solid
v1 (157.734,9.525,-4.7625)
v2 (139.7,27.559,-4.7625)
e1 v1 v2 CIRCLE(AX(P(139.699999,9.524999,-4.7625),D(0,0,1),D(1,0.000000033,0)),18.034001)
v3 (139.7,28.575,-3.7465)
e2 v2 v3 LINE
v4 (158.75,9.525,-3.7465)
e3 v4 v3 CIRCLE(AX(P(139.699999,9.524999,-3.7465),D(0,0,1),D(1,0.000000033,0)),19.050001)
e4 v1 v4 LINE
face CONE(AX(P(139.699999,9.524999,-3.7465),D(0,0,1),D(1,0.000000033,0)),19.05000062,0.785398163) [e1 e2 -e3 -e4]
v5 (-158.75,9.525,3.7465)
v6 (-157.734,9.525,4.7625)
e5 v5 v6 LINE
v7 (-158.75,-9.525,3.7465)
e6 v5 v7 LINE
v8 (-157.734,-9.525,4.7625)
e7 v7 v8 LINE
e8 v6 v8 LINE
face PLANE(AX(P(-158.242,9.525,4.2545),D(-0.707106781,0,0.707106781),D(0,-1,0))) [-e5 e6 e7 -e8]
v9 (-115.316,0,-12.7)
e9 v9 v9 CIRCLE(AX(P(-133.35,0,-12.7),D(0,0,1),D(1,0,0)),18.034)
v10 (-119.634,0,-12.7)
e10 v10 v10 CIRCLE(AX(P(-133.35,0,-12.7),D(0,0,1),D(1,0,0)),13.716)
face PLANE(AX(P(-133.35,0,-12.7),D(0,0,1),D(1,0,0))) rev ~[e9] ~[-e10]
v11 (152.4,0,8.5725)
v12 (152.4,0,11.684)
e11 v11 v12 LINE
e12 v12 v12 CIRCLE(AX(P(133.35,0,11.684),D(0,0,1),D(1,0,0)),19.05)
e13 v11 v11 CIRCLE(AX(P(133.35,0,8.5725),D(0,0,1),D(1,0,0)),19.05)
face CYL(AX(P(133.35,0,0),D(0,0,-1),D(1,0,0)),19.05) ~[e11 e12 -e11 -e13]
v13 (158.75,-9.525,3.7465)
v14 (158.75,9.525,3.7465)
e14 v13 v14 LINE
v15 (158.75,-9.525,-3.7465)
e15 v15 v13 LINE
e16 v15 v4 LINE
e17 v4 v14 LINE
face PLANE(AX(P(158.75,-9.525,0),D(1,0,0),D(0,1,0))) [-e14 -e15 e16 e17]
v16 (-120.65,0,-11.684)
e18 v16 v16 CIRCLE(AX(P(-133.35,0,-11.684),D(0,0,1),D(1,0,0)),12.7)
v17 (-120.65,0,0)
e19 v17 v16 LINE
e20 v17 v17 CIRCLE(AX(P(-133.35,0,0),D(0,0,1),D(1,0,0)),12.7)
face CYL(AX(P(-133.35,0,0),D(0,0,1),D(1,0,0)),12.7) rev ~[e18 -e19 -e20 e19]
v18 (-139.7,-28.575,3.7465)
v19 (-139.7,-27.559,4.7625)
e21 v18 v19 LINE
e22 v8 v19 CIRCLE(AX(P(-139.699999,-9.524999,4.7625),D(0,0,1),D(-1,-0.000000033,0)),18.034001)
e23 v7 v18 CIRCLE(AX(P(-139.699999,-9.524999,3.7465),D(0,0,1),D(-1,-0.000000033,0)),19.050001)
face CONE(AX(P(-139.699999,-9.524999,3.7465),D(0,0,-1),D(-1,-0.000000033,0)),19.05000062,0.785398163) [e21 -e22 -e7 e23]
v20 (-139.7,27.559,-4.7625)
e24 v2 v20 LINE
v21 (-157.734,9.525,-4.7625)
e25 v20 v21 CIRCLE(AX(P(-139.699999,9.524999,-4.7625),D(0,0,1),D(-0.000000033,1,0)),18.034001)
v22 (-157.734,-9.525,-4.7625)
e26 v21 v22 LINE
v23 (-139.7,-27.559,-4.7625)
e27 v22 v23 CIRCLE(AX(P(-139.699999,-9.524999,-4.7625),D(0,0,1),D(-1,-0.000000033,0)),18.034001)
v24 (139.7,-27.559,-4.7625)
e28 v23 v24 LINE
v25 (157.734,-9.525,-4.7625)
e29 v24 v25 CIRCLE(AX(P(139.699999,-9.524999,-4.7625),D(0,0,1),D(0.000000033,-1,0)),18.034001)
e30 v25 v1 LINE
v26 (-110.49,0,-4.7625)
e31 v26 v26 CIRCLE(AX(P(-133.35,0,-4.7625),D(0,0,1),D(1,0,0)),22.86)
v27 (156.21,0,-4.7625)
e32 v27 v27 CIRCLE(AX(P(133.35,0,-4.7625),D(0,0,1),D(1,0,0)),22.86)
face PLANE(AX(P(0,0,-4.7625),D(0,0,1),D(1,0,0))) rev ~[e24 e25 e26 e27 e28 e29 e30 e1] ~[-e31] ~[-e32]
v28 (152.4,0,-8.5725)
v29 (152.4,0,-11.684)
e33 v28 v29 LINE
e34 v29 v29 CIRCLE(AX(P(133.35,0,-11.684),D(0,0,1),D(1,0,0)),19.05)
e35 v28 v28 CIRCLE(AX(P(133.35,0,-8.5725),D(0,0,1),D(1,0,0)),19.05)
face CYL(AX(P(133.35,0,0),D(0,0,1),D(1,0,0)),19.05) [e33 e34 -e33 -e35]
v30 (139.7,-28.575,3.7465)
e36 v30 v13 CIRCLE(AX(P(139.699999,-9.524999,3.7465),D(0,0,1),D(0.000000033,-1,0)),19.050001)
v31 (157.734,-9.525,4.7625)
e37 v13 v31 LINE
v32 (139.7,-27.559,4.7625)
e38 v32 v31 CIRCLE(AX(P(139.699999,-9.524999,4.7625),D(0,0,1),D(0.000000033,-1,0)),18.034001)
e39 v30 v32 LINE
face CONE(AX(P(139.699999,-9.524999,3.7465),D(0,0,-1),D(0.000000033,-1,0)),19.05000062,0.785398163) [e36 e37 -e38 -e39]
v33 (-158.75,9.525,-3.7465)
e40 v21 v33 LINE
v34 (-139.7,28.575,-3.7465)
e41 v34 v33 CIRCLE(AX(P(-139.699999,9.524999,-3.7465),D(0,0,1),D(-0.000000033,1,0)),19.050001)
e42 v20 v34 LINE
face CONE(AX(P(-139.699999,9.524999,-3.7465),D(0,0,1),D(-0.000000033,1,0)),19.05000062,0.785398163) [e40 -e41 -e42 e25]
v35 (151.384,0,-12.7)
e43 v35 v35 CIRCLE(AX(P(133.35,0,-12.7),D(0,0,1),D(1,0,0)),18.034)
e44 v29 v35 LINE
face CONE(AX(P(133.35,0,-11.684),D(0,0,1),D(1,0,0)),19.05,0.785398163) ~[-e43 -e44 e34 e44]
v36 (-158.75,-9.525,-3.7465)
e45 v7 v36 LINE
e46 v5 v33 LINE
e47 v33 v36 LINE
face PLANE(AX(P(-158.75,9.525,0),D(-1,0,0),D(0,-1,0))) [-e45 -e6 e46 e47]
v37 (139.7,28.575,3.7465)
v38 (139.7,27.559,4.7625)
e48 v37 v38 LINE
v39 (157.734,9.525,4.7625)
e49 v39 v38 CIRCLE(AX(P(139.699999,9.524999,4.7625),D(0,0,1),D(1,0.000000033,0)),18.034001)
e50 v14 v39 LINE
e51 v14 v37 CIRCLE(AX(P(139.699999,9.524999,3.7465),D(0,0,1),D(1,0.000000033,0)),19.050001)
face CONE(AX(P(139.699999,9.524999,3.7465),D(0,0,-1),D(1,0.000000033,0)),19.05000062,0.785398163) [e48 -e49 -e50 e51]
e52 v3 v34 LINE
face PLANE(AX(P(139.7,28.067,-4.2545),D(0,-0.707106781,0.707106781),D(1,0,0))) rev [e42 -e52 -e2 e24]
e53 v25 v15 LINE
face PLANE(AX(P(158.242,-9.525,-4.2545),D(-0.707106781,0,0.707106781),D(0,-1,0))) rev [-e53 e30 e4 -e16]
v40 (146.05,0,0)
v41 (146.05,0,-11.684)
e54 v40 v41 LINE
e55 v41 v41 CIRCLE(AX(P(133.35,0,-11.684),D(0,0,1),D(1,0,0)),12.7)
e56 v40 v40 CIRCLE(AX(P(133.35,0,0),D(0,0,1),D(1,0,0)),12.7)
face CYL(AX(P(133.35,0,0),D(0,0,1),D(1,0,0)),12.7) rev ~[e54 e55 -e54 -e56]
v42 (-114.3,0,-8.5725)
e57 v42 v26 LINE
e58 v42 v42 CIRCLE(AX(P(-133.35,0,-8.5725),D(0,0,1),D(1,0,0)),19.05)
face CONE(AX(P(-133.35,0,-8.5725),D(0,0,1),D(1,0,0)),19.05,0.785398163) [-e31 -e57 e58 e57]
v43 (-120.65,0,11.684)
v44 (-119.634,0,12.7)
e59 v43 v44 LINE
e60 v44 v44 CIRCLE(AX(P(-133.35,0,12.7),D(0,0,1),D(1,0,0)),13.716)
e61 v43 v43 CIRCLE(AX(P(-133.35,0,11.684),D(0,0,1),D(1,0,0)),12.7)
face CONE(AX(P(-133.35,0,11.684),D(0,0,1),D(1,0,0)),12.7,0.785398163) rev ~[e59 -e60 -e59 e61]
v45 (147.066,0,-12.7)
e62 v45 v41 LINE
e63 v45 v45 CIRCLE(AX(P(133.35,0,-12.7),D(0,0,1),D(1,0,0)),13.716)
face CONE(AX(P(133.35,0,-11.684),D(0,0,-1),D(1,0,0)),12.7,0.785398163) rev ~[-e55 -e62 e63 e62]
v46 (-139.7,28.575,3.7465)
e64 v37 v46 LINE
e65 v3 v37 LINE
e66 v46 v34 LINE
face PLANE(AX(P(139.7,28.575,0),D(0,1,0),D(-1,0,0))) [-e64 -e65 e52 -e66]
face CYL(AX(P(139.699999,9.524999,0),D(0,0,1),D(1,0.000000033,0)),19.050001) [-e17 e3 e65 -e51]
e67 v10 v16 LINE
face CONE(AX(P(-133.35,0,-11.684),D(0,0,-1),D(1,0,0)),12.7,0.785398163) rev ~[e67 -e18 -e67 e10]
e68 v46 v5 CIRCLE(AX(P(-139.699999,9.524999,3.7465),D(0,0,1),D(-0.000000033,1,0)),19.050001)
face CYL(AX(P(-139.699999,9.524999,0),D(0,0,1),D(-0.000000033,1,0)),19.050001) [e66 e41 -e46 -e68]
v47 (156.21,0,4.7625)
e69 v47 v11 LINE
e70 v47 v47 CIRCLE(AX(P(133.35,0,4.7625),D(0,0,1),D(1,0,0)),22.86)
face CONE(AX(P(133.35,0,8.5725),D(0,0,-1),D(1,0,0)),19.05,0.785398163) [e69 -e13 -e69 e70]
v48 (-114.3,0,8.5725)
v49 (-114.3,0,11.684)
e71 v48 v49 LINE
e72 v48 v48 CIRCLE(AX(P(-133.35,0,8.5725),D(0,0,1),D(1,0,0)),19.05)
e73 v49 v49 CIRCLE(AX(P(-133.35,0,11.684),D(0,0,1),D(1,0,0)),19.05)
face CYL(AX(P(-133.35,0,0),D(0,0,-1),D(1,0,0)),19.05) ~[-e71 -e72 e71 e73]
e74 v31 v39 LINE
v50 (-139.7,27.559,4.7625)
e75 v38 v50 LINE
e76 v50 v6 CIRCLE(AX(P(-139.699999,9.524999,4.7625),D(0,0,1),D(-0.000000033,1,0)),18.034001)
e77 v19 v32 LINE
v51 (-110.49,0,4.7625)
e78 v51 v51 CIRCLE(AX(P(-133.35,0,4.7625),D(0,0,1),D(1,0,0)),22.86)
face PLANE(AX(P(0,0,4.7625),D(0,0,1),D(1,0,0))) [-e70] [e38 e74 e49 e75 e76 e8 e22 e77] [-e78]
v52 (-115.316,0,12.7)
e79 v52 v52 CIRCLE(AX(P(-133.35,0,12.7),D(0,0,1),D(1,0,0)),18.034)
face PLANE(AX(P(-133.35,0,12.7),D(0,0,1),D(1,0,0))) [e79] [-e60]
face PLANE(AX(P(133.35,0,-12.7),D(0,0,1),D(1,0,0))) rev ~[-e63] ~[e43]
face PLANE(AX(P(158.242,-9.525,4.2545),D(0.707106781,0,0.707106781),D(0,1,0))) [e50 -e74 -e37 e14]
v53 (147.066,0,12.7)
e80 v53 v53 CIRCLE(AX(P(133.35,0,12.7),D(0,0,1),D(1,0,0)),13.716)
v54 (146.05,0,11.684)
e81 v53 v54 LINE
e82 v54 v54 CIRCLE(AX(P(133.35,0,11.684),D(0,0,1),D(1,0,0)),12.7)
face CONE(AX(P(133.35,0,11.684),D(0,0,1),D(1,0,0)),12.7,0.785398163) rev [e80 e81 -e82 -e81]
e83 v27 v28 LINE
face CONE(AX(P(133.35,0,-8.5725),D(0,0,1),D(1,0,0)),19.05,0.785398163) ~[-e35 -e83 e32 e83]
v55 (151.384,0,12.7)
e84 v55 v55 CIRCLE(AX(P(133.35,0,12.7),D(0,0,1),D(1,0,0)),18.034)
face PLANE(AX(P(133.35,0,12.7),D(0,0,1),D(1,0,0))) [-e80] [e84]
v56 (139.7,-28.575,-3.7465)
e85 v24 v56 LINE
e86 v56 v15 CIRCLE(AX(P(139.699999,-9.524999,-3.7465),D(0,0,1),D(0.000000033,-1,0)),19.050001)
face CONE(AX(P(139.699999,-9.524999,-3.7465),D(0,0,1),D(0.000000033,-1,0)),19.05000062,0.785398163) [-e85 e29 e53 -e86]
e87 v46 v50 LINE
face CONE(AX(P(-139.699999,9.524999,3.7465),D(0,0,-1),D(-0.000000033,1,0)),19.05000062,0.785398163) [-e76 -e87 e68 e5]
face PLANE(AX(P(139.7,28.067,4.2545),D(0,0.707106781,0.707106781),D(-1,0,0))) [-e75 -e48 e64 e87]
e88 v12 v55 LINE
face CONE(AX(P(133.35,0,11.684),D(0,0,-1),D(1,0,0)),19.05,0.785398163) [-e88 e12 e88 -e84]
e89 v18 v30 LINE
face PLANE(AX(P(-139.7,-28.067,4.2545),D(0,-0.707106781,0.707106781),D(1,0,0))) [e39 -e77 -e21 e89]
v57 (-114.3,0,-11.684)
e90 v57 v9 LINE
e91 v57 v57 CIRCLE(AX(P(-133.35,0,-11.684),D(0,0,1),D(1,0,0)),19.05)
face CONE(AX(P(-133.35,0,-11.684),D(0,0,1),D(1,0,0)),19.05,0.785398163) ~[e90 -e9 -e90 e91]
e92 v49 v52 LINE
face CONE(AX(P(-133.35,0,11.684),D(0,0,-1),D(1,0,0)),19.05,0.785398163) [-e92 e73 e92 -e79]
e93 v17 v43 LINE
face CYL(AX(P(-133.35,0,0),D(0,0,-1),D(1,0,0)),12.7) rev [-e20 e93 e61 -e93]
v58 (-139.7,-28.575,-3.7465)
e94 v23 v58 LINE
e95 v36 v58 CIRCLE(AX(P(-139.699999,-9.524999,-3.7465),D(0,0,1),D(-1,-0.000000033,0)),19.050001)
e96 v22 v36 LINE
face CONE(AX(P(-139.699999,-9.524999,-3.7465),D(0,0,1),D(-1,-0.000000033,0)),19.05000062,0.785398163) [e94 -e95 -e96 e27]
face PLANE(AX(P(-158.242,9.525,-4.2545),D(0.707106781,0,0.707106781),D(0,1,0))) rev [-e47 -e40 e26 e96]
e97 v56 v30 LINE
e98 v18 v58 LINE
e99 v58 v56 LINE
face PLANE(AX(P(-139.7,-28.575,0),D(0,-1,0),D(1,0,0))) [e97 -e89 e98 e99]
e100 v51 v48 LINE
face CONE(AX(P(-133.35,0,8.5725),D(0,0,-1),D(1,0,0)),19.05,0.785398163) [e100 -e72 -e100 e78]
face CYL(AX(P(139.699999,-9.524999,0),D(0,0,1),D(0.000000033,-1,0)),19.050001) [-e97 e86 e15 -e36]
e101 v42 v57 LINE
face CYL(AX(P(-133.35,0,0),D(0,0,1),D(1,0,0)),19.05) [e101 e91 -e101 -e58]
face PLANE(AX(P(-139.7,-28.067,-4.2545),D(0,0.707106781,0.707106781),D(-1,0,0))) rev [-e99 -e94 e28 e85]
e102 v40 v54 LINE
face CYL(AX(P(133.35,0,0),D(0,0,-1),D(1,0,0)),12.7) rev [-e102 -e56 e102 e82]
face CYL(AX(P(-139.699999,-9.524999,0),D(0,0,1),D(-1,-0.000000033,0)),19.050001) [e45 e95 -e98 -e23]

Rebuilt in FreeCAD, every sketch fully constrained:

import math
import FreeCAD as App
import Part
import Sketcher
from FreeCAD import Vector
Q = App.Units.Quantity


def edges_at(feature, points):
    """Names of the edges that pass closest to the given points."""
    edges = feature.Shape.Edges
    near = lambda p: min(range(len(edges)), key=lambda i: edges[i].distToShape(Part.Vertex(*p))[0])
    return sorted({f"Edge{near(p) + 1}" for p in points})

doc = App.newDocument("Part")
body = doc.addObject("PartDesign::Body", "Body")

sketch1 = body.newObject("Sketcher::SketchObject", "Sketch")
sketch1.AttachmentSupport = (doc.getObject("XY_Plane"), [""])
sketch1.MapMode = "FlatFace"
sketch1.addGeometry([
    Part.LineSegment(Vector(-140, -29, 0), Vector(140, -29, 0)),
    Part.ArcOfCircle(Part.Circle(Vector(140, -10, 0), Vector(0, 0, 1), 19), math.radians(-90), math.radians(0)),
    Part.LineSegment(Vector(159, -10, 0), Vector(159, 10, 0)),
    Part.ArcOfCircle(Part.Circle(Vector(140, 10, 0), Vector(0, 0, 1), 19), math.radians(0), math.radians(90)),
    Part.LineSegment(Vector(140, 29, 0), Vector(-140, 29, 0)),
    Part.ArcOfCircle(Part.Circle(Vector(-140, 10, 0), Vector(0, 0, 1), 19), math.radians(90), math.radians(180)),
    Part.LineSegment(Vector(-159, 10, 0), Vector(-159, -10, 0)),
    Part.ArcOfCircle(Part.Circle(Vector(-140, -10, 0), Vector(0, 0, 1), 19), math.radians(-180), math.radians(-90)),
    Part.Circle(Vector(-133, 0, 0), Vector(0, 0, 1), 19),
    Part.Circle(Vector(133, 0, 0), Vector(0, 0, 1), 19),
], False)
sketch1.addConstraint([
    Sketcher.Constraint("Tangent", 0, 2, 1, 1),
    Sketcher.Constraint("Tangent", 1, 2, 2, 1),
    Sketcher.Constraint("Tangent", 2, 2, 3, 1),
    Sketcher.Constraint("Tangent", 3, 2, 4, 1),
    Sketcher.Constraint("Tangent", 4, 2, 5, 1),
    Sketcher.Constraint("Tangent", 5, 2, 6, 1),
    Sketcher.Constraint("Tangent", 6, 2, 7, 1),
    Sketcher.Constraint("Tangent", 7, 2, 0, 1),
    Sketcher.Constraint("Horizontal", 0),
    Sketcher.Constraint("Vertical", 2),
    Sketcher.Constraint("Horizontal", 4),
    Sketcher.Constraint("Vertical", 6),
    Sketcher.Constraint("Equal", 1, 3),
    Sketcher.Constraint("Equal", 3, 5),
    Sketcher.Constraint("Equal", 5, 7),
    Sketcher.Constraint("Equal", 7, 8),
    Sketcher.Constraint("Equal", 8, 9),
    Sketcher.Constraint("Symmetric", 1, 3, 5, 3, -1, 1),
    Sketcher.Constraint("Symmetric", 8, 3, 9, 3, -1, 1),
    Sketcher.Constraint("PointOnObject", 8, 3, -1),
    Sketcher.Constraint("Diameter", 8, Q("1.5 in")),
    Sketcher.Constraint("DistanceX", 0, 1, 0, 2, Q("11 in")),
    Sketcher.Constraint("DistanceX", 9, 3, 1, 2, Q("1 in")),
    Sketcher.Constraint("DistanceY", 2, 1, 2, 2, Q("0.75 in")),
])
pad1 = body.newObject("PartDesign::Pad", "Pad")
pad1.Profile = sketch1
pad1.Type = "TwoLengths"
pad1.Length = Q("0.1875 in")
pad1.Length2 = Q("0.1875 in")

sketch2 = body.newObject("Sketcher::SketchObject", "Sketch001")
sketch2.AttachmentSupport = (doc.getObject("XY_Plane"), [""])
sketch2.MapMode = "FlatFace"
sketch2.addGeometry([
    Part.Circle(Vector(-133, 0, 0), Vector(0, 0, 1), 19),
    Part.Circle(Vector(-133, 0, 0), Vector(0, 0, 1), 13),
    Part.Circle(Vector(133, 0, 0), Vector(0, 0, 1), 19),
    Part.Circle(Vector(133, 0, 0), Vector(0, 0, 1), 13),
], False)
sketch2.addConstraint([
    Sketcher.Constraint("Coincident", 1, 3, 0, 3),
    Sketcher.Constraint("Coincident", 3, 3, 2, 3),
    Sketcher.Constraint("Equal", 0, 2),
    Sketcher.Constraint("Equal", 1, 3),
    Sketcher.Constraint("Symmetric", 0, 3, 2, 3, -1, 1),
    Sketcher.Constraint("PointOnObject", 0, 3, -1),
    Sketcher.Constraint("Diameter", 1, Q("1 in")),
    Sketcher.Constraint("Diameter", 0, Q("1.5 in")),
    Sketcher.Constraint("DistanceX", 0, 3, 2, 3, Q("10.5 in")),
])
pad2 = body.newObject("PartDesign::Pad", "Pad001")
pad2.Profile = sketch2
pad2.Type = "TwoLengths"
pad2.Length = Q("0.5 in")
pad2.Length2 = Q("0.5 in")
doc.recompute()

chamfer = body.newObject("PartDesign::Chamfer", "Chamfer")
chamfer.Base = (pad2, edges_at(pad2, [
    (-139.7, -28.575, 0),
    (0, -28.575, 4.763),
    (139.7, -28.575, 0),
    (0, -28.575, -4.763),
    (158.75, 0, 4.763),
    (158.75, 9.525, 0),
    (158.75, 0, -4.763),
    (158.75, -9.525, 0),
    (0, 28.575, 4.763),
    (-139.7, 28.575, 0),
    (0, 28.575, -4.763),
    (139.7, 28.575, 0),
    (-158.75, 9.525, 0),
    (-158.75, 0, 4.763),
    (-158.75, -9.525, 0),
    (-158.75, 0, -4.763),
    (120.65, 0, 12.7),
    (146.05, 0, -6.35),
    (120.65, 0, -12.7),
    (-146.05, 0, 12.7),
    (-120.65, 0, -6.35),
    (-146.05, 0, -12.7),
    (-152.4, 0, -12.7),
    (114.3, 0, -12.7),
    (114.3, 0, 12.7),
    (-152.4, 0, 12.7),
]))
chamfer.Size = Q("0.04 in")
doc.recompute()

chamfer2 = body.newObject("PartDesign::Chamfer", "Chamfer001")
chamfer2.Base = (chamfer, edges_at(chamfer, [
    (-152.4, 0, 4.763),
    (-152.4, 0, -4.763),
    (114.3, 0, -4.763),
    (114.3, 0, 4.763),
]))
chamfer2.Size = Q("0.15 in")

doc.recompute()
